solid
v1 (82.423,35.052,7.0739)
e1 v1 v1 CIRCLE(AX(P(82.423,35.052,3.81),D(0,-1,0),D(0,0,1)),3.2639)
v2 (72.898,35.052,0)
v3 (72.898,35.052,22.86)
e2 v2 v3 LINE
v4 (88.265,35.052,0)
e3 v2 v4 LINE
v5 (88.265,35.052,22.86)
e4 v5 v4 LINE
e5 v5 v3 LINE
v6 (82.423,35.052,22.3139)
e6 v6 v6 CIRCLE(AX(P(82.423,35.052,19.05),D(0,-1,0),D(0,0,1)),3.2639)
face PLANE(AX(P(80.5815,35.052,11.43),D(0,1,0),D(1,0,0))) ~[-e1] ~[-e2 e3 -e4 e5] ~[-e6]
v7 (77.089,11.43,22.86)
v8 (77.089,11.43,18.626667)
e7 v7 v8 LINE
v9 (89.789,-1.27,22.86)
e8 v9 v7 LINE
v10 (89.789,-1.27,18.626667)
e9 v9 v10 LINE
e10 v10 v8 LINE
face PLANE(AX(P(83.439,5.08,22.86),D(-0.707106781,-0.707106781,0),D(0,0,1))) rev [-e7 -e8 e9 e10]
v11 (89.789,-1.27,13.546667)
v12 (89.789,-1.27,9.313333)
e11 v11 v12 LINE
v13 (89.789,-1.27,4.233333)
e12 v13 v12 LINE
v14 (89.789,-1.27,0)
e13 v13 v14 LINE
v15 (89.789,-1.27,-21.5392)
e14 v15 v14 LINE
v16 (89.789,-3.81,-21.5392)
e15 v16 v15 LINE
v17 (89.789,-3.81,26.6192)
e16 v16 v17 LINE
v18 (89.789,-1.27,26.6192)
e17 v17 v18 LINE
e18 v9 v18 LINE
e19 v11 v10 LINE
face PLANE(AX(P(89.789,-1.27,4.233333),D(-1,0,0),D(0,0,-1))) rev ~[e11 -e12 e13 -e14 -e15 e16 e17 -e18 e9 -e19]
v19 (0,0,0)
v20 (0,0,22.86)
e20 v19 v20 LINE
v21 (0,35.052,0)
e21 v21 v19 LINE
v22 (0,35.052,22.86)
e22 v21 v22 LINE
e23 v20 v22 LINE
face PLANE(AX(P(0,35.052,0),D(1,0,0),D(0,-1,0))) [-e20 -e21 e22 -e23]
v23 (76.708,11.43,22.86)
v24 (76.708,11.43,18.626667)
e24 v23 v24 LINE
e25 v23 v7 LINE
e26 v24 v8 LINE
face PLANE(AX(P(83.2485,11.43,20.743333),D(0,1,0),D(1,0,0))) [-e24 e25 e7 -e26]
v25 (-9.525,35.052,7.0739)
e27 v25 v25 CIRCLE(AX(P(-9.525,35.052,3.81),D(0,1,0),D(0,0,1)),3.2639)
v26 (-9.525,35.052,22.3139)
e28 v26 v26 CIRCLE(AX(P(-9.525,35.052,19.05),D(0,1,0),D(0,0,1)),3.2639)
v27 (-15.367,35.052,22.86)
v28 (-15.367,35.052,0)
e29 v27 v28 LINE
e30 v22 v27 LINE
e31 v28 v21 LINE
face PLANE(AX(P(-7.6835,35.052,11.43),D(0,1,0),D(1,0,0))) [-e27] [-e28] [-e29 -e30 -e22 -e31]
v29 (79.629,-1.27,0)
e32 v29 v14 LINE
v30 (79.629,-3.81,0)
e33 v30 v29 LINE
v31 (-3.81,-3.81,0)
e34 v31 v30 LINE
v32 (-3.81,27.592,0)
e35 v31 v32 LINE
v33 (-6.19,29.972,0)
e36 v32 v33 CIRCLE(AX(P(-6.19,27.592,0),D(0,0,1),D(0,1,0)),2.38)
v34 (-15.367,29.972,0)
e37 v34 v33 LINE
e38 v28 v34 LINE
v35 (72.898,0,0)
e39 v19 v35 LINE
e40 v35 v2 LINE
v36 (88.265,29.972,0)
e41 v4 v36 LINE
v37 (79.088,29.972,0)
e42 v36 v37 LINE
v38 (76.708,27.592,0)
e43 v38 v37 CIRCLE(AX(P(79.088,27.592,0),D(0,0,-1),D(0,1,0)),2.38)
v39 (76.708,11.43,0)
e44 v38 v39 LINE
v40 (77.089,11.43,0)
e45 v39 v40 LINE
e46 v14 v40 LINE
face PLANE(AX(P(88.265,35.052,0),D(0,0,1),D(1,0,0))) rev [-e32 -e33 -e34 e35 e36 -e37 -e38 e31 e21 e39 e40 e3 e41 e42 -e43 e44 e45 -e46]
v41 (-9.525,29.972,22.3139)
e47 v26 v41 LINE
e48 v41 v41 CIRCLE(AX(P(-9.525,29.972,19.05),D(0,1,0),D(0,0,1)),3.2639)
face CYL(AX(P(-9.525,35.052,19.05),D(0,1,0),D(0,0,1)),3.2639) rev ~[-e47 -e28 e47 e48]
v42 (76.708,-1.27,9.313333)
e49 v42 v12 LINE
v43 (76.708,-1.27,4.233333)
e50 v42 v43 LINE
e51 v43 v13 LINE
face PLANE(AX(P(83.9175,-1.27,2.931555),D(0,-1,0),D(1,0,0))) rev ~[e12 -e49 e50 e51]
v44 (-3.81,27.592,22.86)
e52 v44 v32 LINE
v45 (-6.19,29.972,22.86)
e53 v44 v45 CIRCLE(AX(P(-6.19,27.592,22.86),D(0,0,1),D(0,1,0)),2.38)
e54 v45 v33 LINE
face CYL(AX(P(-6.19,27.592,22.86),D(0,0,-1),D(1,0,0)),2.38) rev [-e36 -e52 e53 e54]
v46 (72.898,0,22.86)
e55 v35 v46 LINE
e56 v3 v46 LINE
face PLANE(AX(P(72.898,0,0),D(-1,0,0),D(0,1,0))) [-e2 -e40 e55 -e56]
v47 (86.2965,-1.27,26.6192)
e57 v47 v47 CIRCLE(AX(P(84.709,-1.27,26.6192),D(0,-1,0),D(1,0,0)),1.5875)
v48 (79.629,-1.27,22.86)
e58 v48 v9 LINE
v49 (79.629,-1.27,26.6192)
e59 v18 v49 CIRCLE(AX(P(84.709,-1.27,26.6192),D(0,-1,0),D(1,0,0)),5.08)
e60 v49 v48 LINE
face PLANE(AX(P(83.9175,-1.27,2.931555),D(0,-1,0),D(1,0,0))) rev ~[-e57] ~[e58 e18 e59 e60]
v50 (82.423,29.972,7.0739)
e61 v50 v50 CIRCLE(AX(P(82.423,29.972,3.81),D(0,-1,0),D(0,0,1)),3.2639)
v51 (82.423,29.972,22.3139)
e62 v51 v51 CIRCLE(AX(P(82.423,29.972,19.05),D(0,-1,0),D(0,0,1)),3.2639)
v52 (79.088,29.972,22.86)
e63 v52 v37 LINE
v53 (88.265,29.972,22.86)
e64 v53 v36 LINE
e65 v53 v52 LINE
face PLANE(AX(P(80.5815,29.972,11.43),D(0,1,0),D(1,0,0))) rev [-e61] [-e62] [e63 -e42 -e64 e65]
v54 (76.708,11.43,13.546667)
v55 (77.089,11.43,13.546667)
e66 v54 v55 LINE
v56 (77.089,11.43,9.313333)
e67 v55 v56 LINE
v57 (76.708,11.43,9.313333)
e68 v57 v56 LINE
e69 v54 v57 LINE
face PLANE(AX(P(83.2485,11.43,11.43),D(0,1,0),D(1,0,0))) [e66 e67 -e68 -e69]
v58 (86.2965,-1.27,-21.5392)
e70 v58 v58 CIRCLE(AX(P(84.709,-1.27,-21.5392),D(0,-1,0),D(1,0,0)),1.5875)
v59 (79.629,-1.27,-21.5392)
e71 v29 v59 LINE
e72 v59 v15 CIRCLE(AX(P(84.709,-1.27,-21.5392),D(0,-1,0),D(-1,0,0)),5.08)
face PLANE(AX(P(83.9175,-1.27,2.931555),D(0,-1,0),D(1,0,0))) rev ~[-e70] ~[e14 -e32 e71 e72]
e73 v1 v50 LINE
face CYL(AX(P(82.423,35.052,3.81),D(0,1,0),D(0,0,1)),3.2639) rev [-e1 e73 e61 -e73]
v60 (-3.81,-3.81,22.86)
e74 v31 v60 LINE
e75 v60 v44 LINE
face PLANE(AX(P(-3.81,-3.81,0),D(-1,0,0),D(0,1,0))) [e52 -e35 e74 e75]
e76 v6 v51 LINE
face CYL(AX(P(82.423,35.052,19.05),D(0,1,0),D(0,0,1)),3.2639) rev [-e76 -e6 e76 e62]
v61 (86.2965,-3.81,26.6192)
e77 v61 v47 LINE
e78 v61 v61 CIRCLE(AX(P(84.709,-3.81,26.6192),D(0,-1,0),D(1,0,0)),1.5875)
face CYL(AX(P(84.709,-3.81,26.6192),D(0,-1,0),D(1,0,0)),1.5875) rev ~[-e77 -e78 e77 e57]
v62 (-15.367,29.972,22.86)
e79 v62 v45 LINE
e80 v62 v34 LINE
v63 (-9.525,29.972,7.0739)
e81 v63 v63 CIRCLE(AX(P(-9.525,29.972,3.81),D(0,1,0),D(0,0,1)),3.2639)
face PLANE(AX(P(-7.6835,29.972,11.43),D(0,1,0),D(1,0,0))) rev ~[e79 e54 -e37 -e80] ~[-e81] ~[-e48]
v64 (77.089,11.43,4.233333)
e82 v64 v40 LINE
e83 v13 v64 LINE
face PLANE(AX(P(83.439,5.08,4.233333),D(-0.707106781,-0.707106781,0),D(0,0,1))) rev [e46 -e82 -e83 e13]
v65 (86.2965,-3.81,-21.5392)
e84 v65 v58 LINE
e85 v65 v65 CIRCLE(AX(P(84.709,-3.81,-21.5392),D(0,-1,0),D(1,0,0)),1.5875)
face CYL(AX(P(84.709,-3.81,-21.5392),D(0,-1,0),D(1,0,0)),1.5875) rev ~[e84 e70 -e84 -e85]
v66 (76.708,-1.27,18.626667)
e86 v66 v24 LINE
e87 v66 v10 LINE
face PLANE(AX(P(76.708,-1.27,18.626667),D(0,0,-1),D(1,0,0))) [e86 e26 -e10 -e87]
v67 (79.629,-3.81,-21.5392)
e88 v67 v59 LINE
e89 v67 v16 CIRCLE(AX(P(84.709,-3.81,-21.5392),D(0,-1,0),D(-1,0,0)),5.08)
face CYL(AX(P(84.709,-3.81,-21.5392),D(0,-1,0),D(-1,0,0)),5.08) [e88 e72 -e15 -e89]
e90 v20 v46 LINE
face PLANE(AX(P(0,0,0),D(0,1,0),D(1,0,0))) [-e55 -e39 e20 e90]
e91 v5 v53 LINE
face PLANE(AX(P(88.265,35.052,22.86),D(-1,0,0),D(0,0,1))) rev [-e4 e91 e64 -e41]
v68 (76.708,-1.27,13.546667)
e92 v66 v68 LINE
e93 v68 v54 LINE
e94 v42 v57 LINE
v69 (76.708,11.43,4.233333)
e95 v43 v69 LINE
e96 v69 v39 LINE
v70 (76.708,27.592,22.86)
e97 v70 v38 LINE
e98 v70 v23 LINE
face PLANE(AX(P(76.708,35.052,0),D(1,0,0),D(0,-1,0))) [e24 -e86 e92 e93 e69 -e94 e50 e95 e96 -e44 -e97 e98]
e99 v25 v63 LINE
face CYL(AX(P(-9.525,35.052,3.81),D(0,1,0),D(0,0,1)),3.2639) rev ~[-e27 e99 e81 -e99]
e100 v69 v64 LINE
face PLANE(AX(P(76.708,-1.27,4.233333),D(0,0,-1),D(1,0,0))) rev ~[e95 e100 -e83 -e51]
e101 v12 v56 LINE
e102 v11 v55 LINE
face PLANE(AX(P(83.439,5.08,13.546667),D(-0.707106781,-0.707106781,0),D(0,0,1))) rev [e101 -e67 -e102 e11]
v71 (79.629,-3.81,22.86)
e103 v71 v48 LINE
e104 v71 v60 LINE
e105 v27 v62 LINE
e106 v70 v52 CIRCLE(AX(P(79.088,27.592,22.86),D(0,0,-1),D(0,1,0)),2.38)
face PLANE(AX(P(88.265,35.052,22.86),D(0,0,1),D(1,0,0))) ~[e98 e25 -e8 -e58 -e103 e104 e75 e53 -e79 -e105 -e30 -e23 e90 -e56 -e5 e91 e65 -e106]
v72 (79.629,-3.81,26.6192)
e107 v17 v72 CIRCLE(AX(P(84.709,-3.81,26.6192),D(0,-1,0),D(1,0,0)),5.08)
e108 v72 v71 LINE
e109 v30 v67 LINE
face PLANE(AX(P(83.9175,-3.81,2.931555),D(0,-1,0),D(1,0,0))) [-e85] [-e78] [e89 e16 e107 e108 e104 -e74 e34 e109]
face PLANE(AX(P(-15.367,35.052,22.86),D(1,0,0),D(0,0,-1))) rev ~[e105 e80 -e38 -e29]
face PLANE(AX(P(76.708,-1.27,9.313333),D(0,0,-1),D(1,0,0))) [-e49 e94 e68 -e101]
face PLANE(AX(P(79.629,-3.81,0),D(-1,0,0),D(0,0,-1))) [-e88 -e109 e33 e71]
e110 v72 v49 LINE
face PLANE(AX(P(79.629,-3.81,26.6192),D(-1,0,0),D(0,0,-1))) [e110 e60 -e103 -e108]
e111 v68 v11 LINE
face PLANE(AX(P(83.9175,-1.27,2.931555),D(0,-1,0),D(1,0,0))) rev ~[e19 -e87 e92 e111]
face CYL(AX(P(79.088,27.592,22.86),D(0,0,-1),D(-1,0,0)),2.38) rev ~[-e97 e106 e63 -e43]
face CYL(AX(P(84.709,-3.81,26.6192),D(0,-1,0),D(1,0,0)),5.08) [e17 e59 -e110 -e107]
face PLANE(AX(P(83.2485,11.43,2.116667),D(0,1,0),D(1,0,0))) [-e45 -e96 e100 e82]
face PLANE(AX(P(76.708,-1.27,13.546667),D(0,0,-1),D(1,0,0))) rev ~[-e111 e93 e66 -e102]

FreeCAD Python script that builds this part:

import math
import FreeCAD as App
import Part
import Sketcher

V = App.Vector
Q = App.Units.Quantity


def edges_at(feature, points):
    """Names of the edges that pass closest to the given points."""
    edges = feature.Shape.Edges
    near = lambda p: min(range(len(edges)), key=lambda i: edges[i].distToShape(Part.Vertex(*p))[0])
    return sorted({f"Edge{near(p) + 1}" for p in points})

doc = App.newDocument("Part")
params = doc.addObject("Spreadsheet::Sheet", "Params")
for row, (alias, value) in enumerate([
    ("sketch1_width", "0.15 in"),
    ("sketch1_width2", "3.17 in"),
    ("sketch1_height", "1.53 in"),
    ("sketch1_height2", "1.38 in"),
    ("pad1_length", "0.9 in"),
    ("sketch2_radius", "0.2 in"),
    ("sketch2_diameter", "0.125 in"),
    ("sketch2_height", "0.9 in"),
    ("sketch2_width", "0.115 in"),
    ("sketch2_height2", "0.148 in"),
    ("pad2_length", "0.1 in"),
    ("sketch3_diameter", "0.257 in"),
    ("sketch3_height", "0.9 in"),
    ("sketch3_width", "0.605 in"),
    ("pad3_length", "0.2 in"),
    ("sketch4_width", "0.515 in"),
    ("pad4_length", "0.5 in"),
    ("chamfer_size", "0.5 in"),
    ("fillet_radius", "2.38 mm"),
], start=1):
    params.set(f"A{row}", alias)
    params.set(f"B{row}", "=" + value)
    params.setAlias(f"B{row}", alias)

body = doc.addObject("PartDesign::Body", "Body")

# Sketch on XY plane
sketch1 = doc.addObject("Sketcher::SketchObject", "Sketch")
body.addObject(sketch1)
sketch1.AttachmentSupport = (doc.XY_Plane, [""])
sketch1.MapMode = "FlatFace"
sketch1.addGeometry([
    Part.LineSegment(V(0, 35.1, 0), V(-3.8, 35.1, 0)),  # 0
    Part.LineSegment(V(-3.8, 35.1, 0), V(-3.8, -3.8, 0)),  # 1
    Part.LineSegment(V(-3.8, -3.8, 0), V(76.7, -3.8, 0)),  # 2
    Part.LineSegment(V(76.7, -3.8, 0), V(76.7, 35.1, 0)),  # 3
    Part.LineSegment(V(76.7, 35.1, 0), V(72.9, 35.1, 0)),  # 4
    Part.LineSegment(V(72.9, 35.1, 0), V(72.9, 0, 0)),  # 5
    Part.LineSegment(V(72.9, 0, 0), V(0, 0, 0)),  # 6
    Part.LineSegment(V(0, 0, 0), V(0, 35.1, 0)),  # 7
], False)
sketch1.addConstraint([
    Sketcher.Constraint("Coincident", 0, 2, 1, 1),
    Sketcher.Constraint("Coincident", 1, 2, 2, 1),
    Sketcher.Constraint("Coincident", 2, 2, 3, 1),
    Sketcher.Constraint("Coincident", 3, 2, 4, 1),
    Sketcher.Constraint("Coincident", 4, 2, 5, 1),
    Sketcher.Constraint("Coincident", 5, 2, 6, 1),
    Sketcher.Constraint("Coincident", 6, 2, 7, 1),
    Sketcher.Constraint("Coincident", 7, 2, 0, 1),
    Sketcher.Constraint("Horizontal", 0),
    Sketcher.Constraint("Vertical", 1),
    Sketcher.Constraint("Horizontal", 2),
    Sketcher.Constraint("Vertical", 3),
    Sketcher.Constraint("Horizontal", 4),
    Sketcher.Constraint("Vertical", 5),
    Sketcher.Constraint("Horizontal", 6),
    Sketcher.Constraint("Vertical", 7),
    Sketcher.Constraint("Coincident", 6, 2, -1, 1),
    Sketcher.Constraint("Horizontal", 0, 2, 3, 2),
    Sketcher.Constraint("Equal", 0, 4),
    Sketcher.Constraint("DistanceX", 0, 2, 0, 1, Q("0.15 in")),
    Sketcher.Constraint("DistanceX", 2, 1, 2, 2, Q("3.17 in")),
    Sketcher.Constraint("DistanceY", 1, 2, 1, 1, Q("1.53 in")),
    Sketcher.Constraint("DistanceY", 5, 2, 5, 1, Q("1.38 in")),
])
sketch1.setExpression("Constraints[19]", "Params.sketch1_width")
sketch1.setExpression("Constraints[20]", "Params.sketch1_width2")
sketch1.setExpression("Constraints[21]", "Params.sketch1_height")
sketch1.setExpression("Constraints[22]", "Params.sketch1_height2")
pad1 = doc.addObject("PartDesign::Pad", "Pad")
body.addObject(pad1)
pad1.Profile = sketch1
pad1.setExpression("Length", "Params.pad1_length")

# Sketch on XZ plane
sketch2 = doc.addObject("Sketcher::SketchObject", "Sketch001")
body.addObject(sketch2)
sketch2.AttachmentSupport = (doc.XZ_Plane, [""])
sketch2.MapMode = "FlatFace"
sketch2.AttachmentOffset = App.Placement(V(0, 0, 0.15 * 25.4), App.Rotation())
sketch2.addGeometry([
    Part.ArcOfCircle(Part.Circle(V(84.7, 26.6, 0), V(0, 0, 1), 5.1), math.radians(0), math.radians(180)),  # 0
    Part.LineSegment(V(79.6, 26.6, 0), V(79.6, 22.9, 0)),  # 1
    Part.LineSegment(V(79.6, 22.9, 0), V(76.7, 22.9, 0)),  # 2
    Part.LineSegment(V(76.7, 22.9, 0), V(76.7, 0, 0)),  # 3
    Part.LineSegment(V(76.7, 0, 0), V(79.6, 0, 0)),  # 4
    Part.LineSegment(V(79.6, 0, 0), V(79.6, -21.5, 0)),  # 5
    Part.ArcOfCircle(Part.Circle(V(84.7, -21.5, 0), V(0, 0, 1), 5.1), math.radians(180), math.radians(360)),  # 6
    Part.LineSegment(V(89.8, -21.5, 0), V(89.8, 26.6, 0)),  # 7
    Part.Circle(V(84.7, -21.5, 0), V(0, 0, 1), 1.6),  # 8
    Part.Circle(V(84.7, 26.6, 0), V(0, 0, 1), 1.6),  # 9
], False)
sketch2.addConstraint([
    Sketcher.Constraint("Tangent", 0, 2, 1, 1),
    Sketcher.Constraint("Coincident", 1, 2, 2, 1),
    Sketcher.Constraint("Coincident", 2, 2, 3, 1),
    Sketcher.Constraint("Coincident", 3, 2, 4, 1),
    Sketcher.Constraint("Coincident", 4, 2, 5, 1),
    Sketcher.Constraint("Tangent", 5, 2, 6, 1),
    Sketcher.Constraint("Tangent", 6, 2, 7, 1),
    Sketcher.Constraint("Tangent", 7, 2, 0, 1),
    Sketcher.Constraint("Vertical", 1),
    Sketcher.Constraint("Horizontal", 2),
    Sketcher.Constraint("Vertical", 3),
    Sketcher.Constraint("Horizontal", 4),
    Sketcher.Constraint("Vertical", 5),
    Sketcher.Constraint("Vertical", 7),
    Sketcher.Constraint("Coincident", 8, 3, 6, 3),
    Sketcher.Constraint("Coincident", 9, 3, 0, 3),
    Sketcher.Constraint("Equal", 0, 6),
    Sketcher.Constraint("Equal", 8, 9),
    Sketcher.Constraint("PointOnObject", 3, 2, -1),
    Sketcher.Constraint("Radius", 0, Q("0.2 in")),
    Sketcher.Constraint("Diameter", 8, Q("0.125 in")),
    Sketcher.Constraint("DistanceY", 3, 2, 3, 1, Q("0.9 in")),
    Sketcher.Constraint("DistanceX", 2, 2, 2, 1, Q("0.115 in")),
    Sketcher.Constraint("DistanceY", 1, 2, 1, 1, Q("0.148 in")),
    Sketcher.Constraint("DistanceY", 5, 2, 5, 1, Q("0.848 in")),
    Sketcher.Constraint("DistanceX", -1, 1, 2, 2, Q("3.02 in")),
])
sketch2.setExpression("Constraints[19]", "Params.sketch2_radius")
sketch2.setExpression("Constraints[20]", "Params.sketch2_diameter")
sketch2.setExpression("Constraints[21]", "Params.sketch2_height")
sketch2.setExpression("Constraints[22]", "Params.sketch2_width")
sketch2.setExpression("Constraints[23]", "Params.sketch2_height2")
pad2 = doc.addObject("PartDesign::Pad", "Pad001")
body.addObject(pad2)
pad2.Profile = sketch2
pad2.setExpression("Length", "Params.pad2_length")
pad2.Reversed = True

# Sketch on XZ plane
sketch3 = doc.addObject("Sketcher::SketchObject", "Sketch002")
body.addObject(sketch3)
sketch3.AttachmentSupport = (doc.XZ_Plane, [""])
sketch3.MapMode = "FlatFace"
sketch3.AttachmentOffset = App.Placement(V(0, 0, -1.38 * 25.4), App.Rotation())
sketch3.addGeometry([
    Part.LineSegment(V(-15.4, 0, 0), V(-15.4, 22.9, 0)),  # 0
    Part.LineSegment(V(-15.4, 22.9, 0), V(0, 22.9, 0)),  # 1
    Part.LineSegment(V(0, 22.9, 0), V(0, 0, 0)),  # 2
    Part.LineSegment(V(0, 0, 0), V(-15.4, 0, 0)),  # 3
    Part.Circle(V(-9.5, 19.1, 0), V(0, 0, 1), 3.3),  # 4
    Part.Circle(V(-9.5, 3.8, 0), V(0, 0, 1), 3.3),  # 5
], False)
sketch3.addConstraint([
    Sketcher.Constraint("Coincident", 0, 2, 1, 1),
    Sketcher.Constraint("Coincident", 1, 2, 2, 1),
    Sketcher.Constraint("Coincident", 2, 2, 3, 1),
    Sketcher.Constraint("Coincident", 3, 2, 0, 1),
    Sketcher.Constraint("Vertical", 0),
    Sketcher.Constraint("Horizontal", 1),
    Sketcher.Constraint("Vertical", 2),
    Sketcher.Constraint("Horizontal", 3),
    Sketcher.Constraint("Coincident", 2, 2, -1, 1),
    Sketcher.Constraint("Equal", 4, 5),
    Sketcher.Constraint("Vertical", 4, 3, 5, 3),
    Sketcher.Constraint("Diameter", 4, Q("0.257 in")),
    Sketcher.Constraint("DistanceY", 0, 1, 0, 2, Q("0.9 in")),
    Sketcher.Constraint("DistanceY", 5, 3, 4, 3, Q("0.6 in")),
    Sketcher.Constraint("DistanceX", 1, 1, 1, 2, Q("0.605 in")),
    Sketcher.Constraint("DistanceY", -1, 1, 4, 3, Q("0.75 in")),
    Sketcher.Constraint("DistanceX", 0, 2, 4, 3, Q("0.23 in")),
])
sketch3.setExpression("Constraints[11]", "Params.sketch3_diameter")
sketch3.setExpression("Constraints[12]", "Params.sketch3_height")
sketch3.setExpression("Constraints[14]", "Params.sketch3_width")
pad3 = doc.addObject("PartDesign::Pad", "Pad002")
body.addObject(pad3)
pad3.Profile = sketch3
pad3.setExpression("Length", "Params.pad3_length")
doc.recompute()

datumplane = doc.addObject("PartDesign::Plane", "DatumPlane")
body.addObject(datumplane)
datumplane.AttachmentSupport = (doc.YZ_Plane, [""])
datumplane.MapMode = "FlatFace"
datumplane.AttachmentOffset = App.Placement(V(0, 0, 1.435 * 25.4), App.Rotation())
mirrored = doc.addObject("PartDesign::Mirrored", "Mirrored")
body.addObject(mirrored)
mirrored.Originals = [pad3]
mirrored.MirrorPlane = (datumplane, [""])
body.Tip = mirrored

# Sketch on XZ plane
sketch4 = doc.addObject("Sketcher::SketchObject", "Sketch003")
body.addObject(sketch4)
sketch4.AttachmentSupport = (doc.XZ_Plane, [""])
sketch4.MapMode = "FlatFace"
sketch4.AttachmentOffset = App.Placement(V(0, 0, 0.05 * 25.4), App.Rotation())
sketch4.addGeometry([
    Part.LineSegment(V(76.7, 0, 0), V(76.7, 4.2, 0)),  # 0
    Part.LineSegment(V(76.7, 4.2, 0), V(89.8, 4.2, 0)),  # 1
    Part.LineSegment(V(89.8, 4.2, 0), V(89.8, 0, 0)),  # 2
    Part.LineSegment(V(89.8, 0, 0), V(76.7, 0, 0)),  # 3
    Part.LineSegment(V(76.7, 18.6, 0), V(76.7, 22.9, 0)),  # 4
    Part.LineSegment(V(76.7, 22.9, 0), V(89.8, 22.9, 0)),  # 5
    Part.LineSegment(V(89.8, 22.9, 0), V(89.8, 18.6, 0)),  # 6
    Part.LineSegment(V(89.8, 18.6, 0), V(76.7, 18.6, 0)),  # 7
    Part.LineSegment(V(76.7, 9.3, 0), V(76.7, 13.5, 0)),  # 8
    Part.LineSegment(V(76.7, 13.5, 0), V(89.8, 13.5, 0)),  # 9
    Part.LineSegment(V(89.8, 13.5, 0), V(89.8, 9.3, 0)),  # 10
    Part.LineSegment(V(89.8, 9.3, 0), V(76.7, 9.3, 0)),  # 11
], False)
sketch4.addConstraint([
    Sketcher.Constraint("Coincident", 0, 2, 1, 1),
    Sketcher.Constraint("Coincident", 1, 2, 2, 1),
    Sketcher.Constraint("Coincident", 2, 2, 3, 1),
    Sketcher.Constraint("Coincident", 3, 2, 0, 1),
    Sketcher.Constraint("Coincident", 4, 2, 5, 1),
    Sketcher.Constraint("Coincident", 5, 2, 6, 1),
    Sketcher.Constraint("Coincident", 6, 2, 7, 1),
    Sketcher.Constraint("Coincident", 7, 2, 4, 1),
    Sketcher.Constraint("Coincident", 8, 2, 9, 1),
    Sketcher.Constraint("Coincident", 9, 2, 10, 1),
    Sketcher.Constraint("Coincident", 10, 2, 11, 1),
    Sketcher.Constraint("Coincident", 11, 2, 8, 1),
    Sketcher.Constraint("Vertical", 0),
    Sketcher.Constraint("Horizontal", 1),
    Sketcher.Constraint("Vertical", 2),
    Sketcher.Constraint("Horizontal", 3),
    Sketcher.Constraint("Vertical", 4),
    Sketcher.Constraint("Horizontal", 5),
    Sketcher.Constraint("Vertical", 6),
    Sketcher.Constraint("Horizontal", 7),
    Sketcher.Constraint("Vertical", 8),
    Sketcher.Constraint("Horizontal", 9),
    Sketcher.Constraint("Vertical", 10),
    Sketcher.Constraint("Horizontal", 11),
    Sketcher.Constraint("PointOnObject", 2, 2, -1),
    Sketcher.Constraint("Vertical", 3, 2, 4, 2),
    Sketcher.Constraint("Vertical", 2, 2, 5, 2),
    Sketcher.Constraint("Vertical", 7, 2, 8, 2),
    Sketcher.Constraint("Vertical", 6, 2, 9, 2),
    Sketcher.Constraint("Equal", 2, 4),
    Sketcher.Constraint("Equal", 6, 8),
    Sketcher.Constraint("DistanceY", -1, 1, 4, 2, Q("0.9 in")),
    Sketcher.Constraint("DistanceY", 8, 2, 7, 2, Q("0.2 in")),
    Sketcher.Constraint("DistanceY", 1, 2, 10, 2, Q("0.2 in")),
    Sketcher.Constraint("DistanceX", 1, 1, 1, 2, Q("0.515 in")),
    Sketcher.Constraint("DistanceX", -1, 1, 0, 2, Q("3.02 in")),
])
sketch4.setExpression("Constraints[34]", "Params.sketch4_width")
pad4 = doc.addObject("PartDesign::Pad", "Pad003")
body.addObject(pad4)
pad4.Profile = sketch4
pad4.setExpression("Length", "Params.pad4_length")
pad4.Reversed = True
doc.recompute()

chamfer = doc.addObject("PartDesign::Chamfer", "Chamfer")
body.addObject(chamfer)
chamfer.Base = (pad4, edges_at(pad4, [(89.789, 11.43, 20.743), (89.789, 11.43, 11.43), (89.789, 11.43, 2.117)]))
chamfer.setExpression("Size", "Params.chamfer_size")
doc.recompute()

fillet = doc.addObject("PartDesign::Fillet", "Fillet")
body.addObject(fillet)
fillet.Base = (chamfer, edges_at(chamfer, [(-3.81, 29.972, 11.43), (76.708, 29.972, 11.43)]))
fillet.setExpression("Radius", "Params.fillet_radius")

doc.recompute()
